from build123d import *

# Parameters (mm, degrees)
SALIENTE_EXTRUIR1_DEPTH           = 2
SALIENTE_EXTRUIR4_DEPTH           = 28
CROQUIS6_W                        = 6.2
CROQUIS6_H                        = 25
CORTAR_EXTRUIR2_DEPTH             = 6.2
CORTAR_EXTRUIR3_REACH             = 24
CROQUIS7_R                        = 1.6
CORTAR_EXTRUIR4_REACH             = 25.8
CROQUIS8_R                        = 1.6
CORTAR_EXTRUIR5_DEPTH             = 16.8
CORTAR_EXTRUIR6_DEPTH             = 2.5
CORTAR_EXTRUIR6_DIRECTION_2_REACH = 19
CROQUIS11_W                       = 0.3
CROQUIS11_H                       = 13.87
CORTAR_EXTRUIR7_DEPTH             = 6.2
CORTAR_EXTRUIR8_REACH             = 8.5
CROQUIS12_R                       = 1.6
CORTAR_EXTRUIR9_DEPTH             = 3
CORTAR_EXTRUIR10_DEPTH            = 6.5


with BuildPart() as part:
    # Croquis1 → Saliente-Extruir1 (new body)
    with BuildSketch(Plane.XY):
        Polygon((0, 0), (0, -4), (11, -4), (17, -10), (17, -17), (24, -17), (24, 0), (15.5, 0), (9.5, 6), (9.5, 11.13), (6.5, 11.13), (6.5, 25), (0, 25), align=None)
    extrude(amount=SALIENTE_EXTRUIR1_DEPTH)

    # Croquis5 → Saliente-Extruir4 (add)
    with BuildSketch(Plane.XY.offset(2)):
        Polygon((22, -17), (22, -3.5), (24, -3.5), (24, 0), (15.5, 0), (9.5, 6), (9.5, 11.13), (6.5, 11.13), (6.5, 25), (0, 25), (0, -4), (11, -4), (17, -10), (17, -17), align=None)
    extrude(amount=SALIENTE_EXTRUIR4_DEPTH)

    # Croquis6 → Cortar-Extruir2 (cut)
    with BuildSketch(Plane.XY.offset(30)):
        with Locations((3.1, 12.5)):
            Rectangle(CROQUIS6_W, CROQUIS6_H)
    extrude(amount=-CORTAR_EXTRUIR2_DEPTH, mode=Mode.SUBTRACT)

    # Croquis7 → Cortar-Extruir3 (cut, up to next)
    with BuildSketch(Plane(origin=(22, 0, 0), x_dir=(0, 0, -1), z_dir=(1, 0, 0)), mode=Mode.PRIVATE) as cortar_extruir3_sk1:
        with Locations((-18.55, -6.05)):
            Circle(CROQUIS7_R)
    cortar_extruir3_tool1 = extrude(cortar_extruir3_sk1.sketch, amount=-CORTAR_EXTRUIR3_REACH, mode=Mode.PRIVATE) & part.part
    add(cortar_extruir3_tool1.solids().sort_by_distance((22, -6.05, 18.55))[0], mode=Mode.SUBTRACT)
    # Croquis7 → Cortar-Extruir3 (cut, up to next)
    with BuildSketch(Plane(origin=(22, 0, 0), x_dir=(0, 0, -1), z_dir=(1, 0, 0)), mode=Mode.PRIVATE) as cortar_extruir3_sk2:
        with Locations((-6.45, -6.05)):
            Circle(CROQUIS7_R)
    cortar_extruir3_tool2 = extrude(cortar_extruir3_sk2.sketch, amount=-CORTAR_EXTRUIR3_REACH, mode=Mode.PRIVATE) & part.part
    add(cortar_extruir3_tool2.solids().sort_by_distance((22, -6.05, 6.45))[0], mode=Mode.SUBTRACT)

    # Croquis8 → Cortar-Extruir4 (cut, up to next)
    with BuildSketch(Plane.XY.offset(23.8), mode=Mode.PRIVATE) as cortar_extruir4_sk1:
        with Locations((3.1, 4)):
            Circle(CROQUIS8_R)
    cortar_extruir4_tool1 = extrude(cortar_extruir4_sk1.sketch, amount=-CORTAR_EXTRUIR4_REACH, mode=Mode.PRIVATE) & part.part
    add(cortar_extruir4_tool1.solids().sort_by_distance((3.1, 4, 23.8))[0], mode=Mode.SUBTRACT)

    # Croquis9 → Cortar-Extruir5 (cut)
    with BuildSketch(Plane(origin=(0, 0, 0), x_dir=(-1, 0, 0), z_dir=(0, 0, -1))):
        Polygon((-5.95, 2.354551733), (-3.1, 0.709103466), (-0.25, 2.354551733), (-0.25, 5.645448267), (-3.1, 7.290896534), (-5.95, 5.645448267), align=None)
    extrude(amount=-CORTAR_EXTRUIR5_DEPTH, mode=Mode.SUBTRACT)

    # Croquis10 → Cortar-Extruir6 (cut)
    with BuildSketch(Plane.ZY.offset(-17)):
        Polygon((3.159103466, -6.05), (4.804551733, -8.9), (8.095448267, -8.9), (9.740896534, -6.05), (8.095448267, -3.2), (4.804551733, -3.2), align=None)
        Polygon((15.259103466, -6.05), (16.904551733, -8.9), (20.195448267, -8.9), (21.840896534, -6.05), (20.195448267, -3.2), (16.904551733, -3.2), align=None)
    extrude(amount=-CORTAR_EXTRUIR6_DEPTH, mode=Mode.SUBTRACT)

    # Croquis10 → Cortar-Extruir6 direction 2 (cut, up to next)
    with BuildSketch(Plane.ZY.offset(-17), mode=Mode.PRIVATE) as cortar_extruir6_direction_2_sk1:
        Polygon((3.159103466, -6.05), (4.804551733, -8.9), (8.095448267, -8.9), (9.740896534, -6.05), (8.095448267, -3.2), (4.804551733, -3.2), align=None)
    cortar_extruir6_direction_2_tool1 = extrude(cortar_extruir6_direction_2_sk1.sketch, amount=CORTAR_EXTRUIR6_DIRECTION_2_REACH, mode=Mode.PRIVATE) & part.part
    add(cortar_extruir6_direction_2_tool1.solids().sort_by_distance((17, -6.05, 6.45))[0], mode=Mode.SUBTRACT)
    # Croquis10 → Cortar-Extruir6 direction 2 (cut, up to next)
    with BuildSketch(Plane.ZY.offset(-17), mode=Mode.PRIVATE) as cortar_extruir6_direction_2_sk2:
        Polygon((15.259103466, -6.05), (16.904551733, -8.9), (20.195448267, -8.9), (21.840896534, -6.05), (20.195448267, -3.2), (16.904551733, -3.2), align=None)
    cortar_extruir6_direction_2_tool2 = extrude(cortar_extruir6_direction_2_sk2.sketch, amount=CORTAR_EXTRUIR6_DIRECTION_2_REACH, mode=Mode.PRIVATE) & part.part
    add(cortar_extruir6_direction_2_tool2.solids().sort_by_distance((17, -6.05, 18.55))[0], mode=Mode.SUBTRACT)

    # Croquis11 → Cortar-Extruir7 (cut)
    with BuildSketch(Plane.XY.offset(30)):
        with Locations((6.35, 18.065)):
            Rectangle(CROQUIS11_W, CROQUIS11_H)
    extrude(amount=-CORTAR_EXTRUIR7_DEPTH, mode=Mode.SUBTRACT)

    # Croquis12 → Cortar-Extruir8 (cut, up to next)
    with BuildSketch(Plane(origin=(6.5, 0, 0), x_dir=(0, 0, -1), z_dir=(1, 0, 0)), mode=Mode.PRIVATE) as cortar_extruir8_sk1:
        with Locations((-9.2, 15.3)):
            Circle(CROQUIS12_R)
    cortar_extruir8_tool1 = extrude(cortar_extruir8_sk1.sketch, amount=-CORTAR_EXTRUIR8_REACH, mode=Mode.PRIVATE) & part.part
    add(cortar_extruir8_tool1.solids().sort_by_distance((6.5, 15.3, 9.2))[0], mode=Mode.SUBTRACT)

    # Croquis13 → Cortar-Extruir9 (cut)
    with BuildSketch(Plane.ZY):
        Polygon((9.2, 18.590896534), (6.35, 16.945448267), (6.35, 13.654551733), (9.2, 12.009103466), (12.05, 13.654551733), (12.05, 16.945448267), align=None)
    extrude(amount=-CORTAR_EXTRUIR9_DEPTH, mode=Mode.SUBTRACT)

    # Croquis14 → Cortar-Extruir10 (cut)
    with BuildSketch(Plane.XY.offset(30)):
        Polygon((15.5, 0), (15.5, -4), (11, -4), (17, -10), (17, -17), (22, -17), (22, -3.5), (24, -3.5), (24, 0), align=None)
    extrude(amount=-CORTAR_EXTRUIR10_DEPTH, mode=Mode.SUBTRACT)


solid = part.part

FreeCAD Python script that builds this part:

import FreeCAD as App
import Part
import Sketcher
Q = App.Units.Quantity


def add_polygon(sketch, points):
    """Adds a closed chain of lines whose ends are joined by coincident constraints."""
    first, n = sketch.GeometryCount, len(points)
    for a, b in zip(points, points[1:] + points[:1]):
        sketch.addGeometry(Part.LineSegment(App.Vector(*a, 0), App.Vector(*b, 0)), False)
    for i in range(n):
        sketch.addConstraint(Sketcher.Constraint("Coincident", first + i, 2, first + (i + 1) % n, 1))

doc = App.newDocument("Part")
params = doc.addObject("Spreadsheet::Sheet", "Params")
for row, (alias, value) in enumerate([
    ("sketch1_width", "11 mm"),
    ("sketch1_width2", "7 mm"),
    ("sketch1_width3", "3 mm"),
    ("sketch1_height", "17 mm"),
    ("sketch1_height2", "29 mm"),
    ("pad1_length", "2 mm"),
    ("sketch2_width", "2 mm"),
    ("sketch2_width2", "3 mm"),
    ("sketch2_width3", "11 mm"),
    ("sketch2_width4", "5 mm"),
    ("sketch2_height", "29 mm"),
    ("pad2_length", "28 mm"),
    ("sketch3_height", "25 mm"),
    ("sketch3_width", "6.2 mm"),
    ("pocket1_length", "6.2 mm"),
    ("sketch4_diameter", "3.2 mm"),
    ("sketch5_diameter", "3.2 mm"),
    ("sketch6_diameter", "3.2 mm"),
    ("pocket5_length", "16.8 mm"),
    ("pocket6_length", "2.5 mm"),
    ("pocket7_length", "17 mm"),
    ("pocket8_length", "17 mm"),
    ("sketch11_width", "0.3 mm"),
    ("sketch11_height", "13.87 mm"),
    ("pocket9_length", "6.2 mm"),
    ("sketch12_diameter", "3.2 mm"),
    ("pocket11_length", "3 mm"),
    ("sketch14_width", "5 mm"),
    ("sketch14_width2", "2 mm"),
    ("sketch14_height", "4 mm"),
    ("sketch14_height2", "7 mm"),
    ("sketch14_width3", "4.5 mm"),
    ("pocket12_length", "6.5 mm"),
], start=1):
    params.set(f"A{row}", alias)
    params.set(f"B{row}", "=" + value)
    params.setAlias(f"B{row}", alias)

body = doc.addObject("PartDesign::Body", "Body")

sketch1 = body.newObject("Sketcher::SketchObject", "Sketch")
sketch1.AttachmentSupport = (doc.getObject("XY_Plane"), [""])
sketch1.MapMode = "FlatFace"
add_polygon(sketch1, [(0, -4), (11, -4), (17, -10), (17, -17), (24, -17), (24, 0), (15.5, 0), (9.5, 6), (9.5, 11.1), (6.5, 11.1), (6.5, 25), (0, 25)])
sketch1.addConstraint([
    Sketcher.Constraint("Horizontal", 0),
    Sketcher.Constraint("Vertical", 2),
    Sketcher.Constraint("Horizontal", 3),
    Sketcher.Constraint("Vertical", 4),
    Sketcher.Constraint("Horizontal", 5),
    Sketcher.Constraint("Vertical", 7),
    Sketcher.Constraint("Horizontal", 8),
    Sketcher.Constraint("Vertical", 9),
    Sketcher.Constraint("Horizontal", 10),
    Sketcher.Constraint("Vertical", 11),
    Sketcher.Constraint("PointOnObject", 4, 2, -1),
    Sketcher.Constraint("PointOnObject", 10, 2, -2),
    Sketcher.Constraint("Parallel", 1, 6),
    Sketcher.Constraint("Equal", 3, 2),
    Sketcher.Constraint("Equal", 1, 6),
    Sketcher.Constraint("DistanceX", 0, 1, 0, 2, 11.0),
    Sketcher.Constraint("DistanceX", 3, 1, 3, 2, 7.0),
    Sketcher.Constraint("DistanceX", 8, 2, 8, 1, 3.0),
    Sketcher.Constraint("DistanceY", 4, 1, 4, 2, 17.0),
    Sketcher.Constraint("DistanceY", 11, 2, 11, 1, 29.0),
    Sketcher.Constraint("Angle", 1, Q("-45 deg")),
    Sketcher.Constraint("DistanceX", 5, 2, 5, 1, 8.5),
    Sketcher.Constraint("DistanceY", 0, 2, -1, 1, 4.0),
    Sketcher.Constraint("DistanceY", 7, 1, 7, 2, 5.13),
])
sketch1.setExpression("Constraints[27]", "Params.sketch1_width")
sketch1.setExpression("Constraints[28]", "Params.sketch1_width2")
sketch1.setExpression("Constraints[29]", "Params.sketch1_width3")
sketch1.setExpression("Constraints[30]", "Params.sketch1_height")
sketch1.setExpression("Constraints[31]", "Params.sketch1_height2")
pad1 = body.newObject("PartDesign::Pad", "Pad")
pad1.Profile = sketch1
pad1.setExpression("Length", "Params.pad1_length")

sketch2 = body.newObject("Sketcher::SketchObject", "Sketch001")
sketch2.AttachmentSupport = (doc.getObject("XY_Plane"), [""])
sketch2.MapMode = "FlatFace"
sketch2.AttachmentOffset = App.Placement(App.Vector(0, 0, 2), App.Rotation())
add_polygon(sketch2, [(22, -17), (22, -3.5), (24, -3.5), (24, 0), (15.5, 0), (9.5, 6), (9.5, 11.1), (6.5, 11.1), (6.5, 25), (0, 25), (0, -4), (11, -4), (17, -10), (17, -17)])
sketch2.addConstraint([
    Sketcher.Constraint("Vertical", 0),
    Sketcher.Constraint("Horizontal", 1),
    Sketcher.Constraint("Vertical", 2),
    Sketcher.Constraint("Horizontal", 3),
    Sketcher.Constraint("Vertical", 5),
    Sketcher.Constraint("Horizontal", 6),
    Sketcher.Constraint("Vertical", 7),
    Sketcher.Constraint("Horizontal", 8),
    Sketcher.Constraint("Vertical", 9),
    Sketcher.Constraint("Horizontal", 10),
    Sketcher.Constraint("Vertical", 12),
    Sketcher.Constraint("Horizontal", 13),
    Sketcher.Constraint("PointOnObject", 2, 2, -1),
    Sketcher.Constraint("PointOnObject", 8, 2, -2),
    Sketcher.Constraint("Parallel", 4, 11),
    Sketcher.Constraint("Equal", 4, 11),
    Sketcher.Constraint("DistanceX", 1, 1, 1, 2, 2.0),
    Sketcher.Constraint("DistanceX", 6, 2, 6, 1, 3.0),
    Sketcher.Constraint("DistanceX", 10, 1, 10, 2, 11.0),
    Sketcher.Constraint("DistanceX", 13, 1, 13, 2, 5.0),
    Sketcher.Constraint("DistanceY", 9, 2, 9, 1, 29.0),
    Sketcher.Constraint("DistanceY", 12, 2, 12, 1, 7.0),
    Sketcher.Constraint("Angle", 4, Q("135 deg")),
    Sketcher.Constraint("DistanceX", 3, 2, 3, 1, 8.5),
    Sketcher.Constraint("DistanceY", 0, 1, 0, 2, 13.5),
    Sketcher.Constraint("DistanceY", 2, 1, 2, 2, 3.5),
    Sketcher.Constraint("DistanceX", -1, 1, 0, 2, 22.0),
    Sketcher.Constraint("DistanceY", 5, 1, 5, 2, 5.13),
])
sketch2.setExpression("Constraints[30]", "Params.sketch2_width")
sketch2.setExpression("Constraints[31]", "Params.sketch2_width2")
sketch2.setExpression("Constraints[32]", "Params.sketch2_width3")
sketch2.setExpression("Constraints[33]", "Params.sketch2_width4")
sketch2.setExpression("Constraints[34]", "Params.sketch2_height")
pad2 = body.newObject("PartDesign::Pad", "Pad001")
pad2.Profile = sketch2
pad2.setExpression("Length", "Params.pad2_length")

sketch3 = body.newObject("Sketcher::SketchObject", "Sketch002")
sketch3.AttachmentSupport = (doc.getObject("XY_Plane"), [""])
sketch3.MapMode = "FlatFace"
sketch3.AttachmentOffset = App.Placement(App.Vector(0, 0, 30), App.Rotation())
add_polygon(sketch3, [(0, 25), (0, 0), (6, 0), (6, 25)])
sketch3.addConstraint([
    Sketcher.Constraint("Vertical", 0),
    Sketcher.Constraint("Horizontal", 1),
    Sketcher.Constraint("Vertical", 2),
    Sketcher.Constraint("Horizontal", 3),
    Sketcher.Constraint("Coincident", 0, 2, -1, 1),
    Sketcher.Constraint("DistanceY", 0, 2, 0, 1, 25.0),
    Sketcher.Constraint("DistanceX", 1, 1, 1, 2, 6.2),
])
sketch3.setExpression("Constraints[9]", "Params.sketch3_height")
sketch3.setExpression("Constraints[10]", "Params.sketch3_width")
pocket1 = body.newObject("PartDesign::Pocket", "Pocket")
pocket1.Profile = sketch3
pocket1.setExpression("Length", "Params.pocket1_length")

sketch4 = body.newObject("Sketcher::SketchObject", "Sketch003")
sketch4.AttachmentSupport = (doc.getObject("YZ_Plane"), [""])
sketch4.MapMode = "FlatFace"
sketch4.AttachmentOffset = App.Placement(App.Vector(0, 0, 22), App.Rotation())
sketch4.addGeometry(Part.Circle(App.Vector(-6, 18.6, 0), App.Vector(0, 0, 1), 1.6), False)
sketch4.addConstraint([
    Sketcher.Constraint("Diameter", 0, 3.2),
    Sketcher.Constraint("DistanceX", 0, 3, -1, 1, 6.05),
    Sketcher.Constraint("DistanceY", -1, 1, 0, 3, 18.55),
])
sketch4.setExpression("Constraints[0]", "Params.sketch4_diameter")
pocket2 = body.newObject("PartDesign::Pocket", "Pocket001")
pocket2.Profile = sketch4
pocket2.Type = "UpToFirst"

sketch5 = body.newObject("Sketcher::SketchObject", "Sketch004")
sketch5.AttachmentSupport = (doc.getObject("YZ_Plane"), [""])
sketch5.MapMode = "FlatFace"
sketch5.AttachmentOffset = App.Placement(App.Vector(0, 0, 22), App.Rotation())
sketch5.addGeometry(Part.Circle(App.Vector(-6, 6.5, 0), App.Vector(0, 0, 1), 1.6), False)
sketch5.addConstraint([
    Sketcher.Constraint("Diameter", 0, 3.2),
    Sketcher.Constraint("DistanceX", 0, 3, -1, 1, 6.05),
    Sketcher.Constraint("DistanceY", -1, 1, 0, 3, 6.45),
])
sketch5.setExpression("Constraints[0]", "Params.sketch5_diameter")
pocket3 = body.newObject("PartDesign::Pocket", "Pocket002")
pocket3.Profile = sketch5
pocket3.Type = "UpToFirst"

sketch6 = body.newObject("Sketcher::SketchObject", "Sketch005")
sketch6.AttachmentSupport = (doc.getObject("XY_Plane"), [""])
sketch6.MapMode = "FlatFace"
sketch6.AttachmentOffset = App.Placement(App.Vector(0, 0, 23.8), App.Rotation())
sketch6.addGeometry(Part.Circle(App.Vector(3.1, 4, 0), App.Vector(0, 0, 1), 1.6), False)
sketch6.addConstraint([
    Sketcher.Constraint("Diameter", 0, 3.2),
    Sketcher.Constraint("DistanceY", -1, 1, 0, 3, 4.0),
    Sketcher.Constraint("DistanceX", -1, 1, 0, 3, 3.1),
])
sketch6.setExpression("Constraints[0]", "Params.sketch6_diameter")
pocket4 = body.newObject("PartDesign::Pocket", "Pocket003")
pocket4.Profile = sketch6
pocket4.Type = "UpToFirst"

sketch7 = body.newObject("Sketcher::SketchObject", "Sketch006")
sketch7.AttachmentSupport = (doc.getObject("XY_Plane"), [""])
sketch7.MapMode = "FlatFace"
add_polygon(sketch7, [(6, 2.4), (3.1, 0.7), (0.2, 2.4), (0.2, 5.6), (3.1, 7.3), (6, 5.6)])
sketch7.addConstraint([
    Sketcher.Constraint("Vertical", 2),
    Sketcher.Constraint("Vertical", 5),
    Sketcher.Constraint("Parallel", 0, 3),
    Sketcher.Constraint("Parallel", 1, 4),
    Sketcher.Constraint("Horizontal", 2, 2, 4, 2),
    Sketcher.Constraint("Horizontal", 1, 2, 5, 2),
    Sketcher.Constraint("Vertical", 0, 2, 3, 2),
    Sketcher.Constraint("Angle", 0, Q("-150 deg")),
    Sketcher.Constraint("DistanceX", -1, 1, 0, 2, 3.1),
    Sketcher.Constraint("DistanceX", 2, 2, 4, 2, 5.7),
    Sketcher.Constraint("DistanceY", 2, 1, 2, 2, 3.290897),
    Sketcher.Constraint("DistanceY", -1, 1, 1, 2, 2.354552),
])
pocket5 = body.newObject("PartDesign::Pocket", "Pocket004")
pocket5.Profile = sketch7
pocket5.setExpression("Length", "Params.pocket5_length")
pocket5.Reversed = True

sketch8 = body.newObject("Sketcher::SketchObject", "Sketch007")
sketch8.AttachmentSupport = (doc.getObject("YZ_Plane"), [""])
sketch8.MapMode = "FlatFace"
sketch8.AttachmentOffset = App.Placement(App.Vector(0, 0, 17), App.Rotation())
add_polygon(sketch8, [(-6, 3.2), (-8.9, 4.8), (-8.9, 8.1), (-6, 9.7), (-3.2, 8.1), (-3.2, 4.8)])
add_polygon(sketch8, [(-6, 15.3), (-8.9, 16.9), (-8.9, 20.2), (-6, 21.8), (-3.2, 20.2), (-3.2, 16.9)])
sketch8.addConstraint([
    Sketcher.Constraint("Vertical", 1),
    Sketcher.Constraint("Vertical", 4),
    Sketcher.Constraint("Vertical", 7),
    Sketcher.Constraint("Vertical", 10),
    Sketcher.Constraint("Parallel", 0, 3),
    Sketcher.Constraint("Parallel", 2, 5),
    Sketcher.Constraint("Parallel", 3, 6),
    Sketcher.Constraint("Parallel", 5, 8),
    Sketcher.Constraint("Parallel", 6, 9),
    Sketcher.Constraint("Parallel", 8, 11),
    Sketcher.Constraint("Horizontal", 1, 2, 3, 2),
    Sketcher.Constraint("Horizontal", 0, 2, 4, 2),
    Sketcher.Constraint("Horizontal", 7, 2, 9, 2),
    Sketcher.Constraint("Horizontal", 6, 2, 10, 2),
    Sketcher.Constraint("Vertical", 2, 2, 5, 2),
    Sketcher.Constraint("Vertical", 1, 2, 6, 2),
    Sketcher.Constraint("Vertical", 5, 2, 8, 2),
    Sketcher.Constraint("Equal", 4, 7),
    Sketcher.Constraint("Angle", 0, Q("150 deg")),
    Sketcher.Constraint("DistanceX", 0, 2, -1, 1, 8.9),
    Sketcher.Constraint("DistanceX", 3, 2, -1, 1, 3.2),
    Sketcher.Constraint("DistanceY", 0, 2, 6, 2, 12.1),
    Sketcher.Constraint("DistanceY", 1, 1, 1, 2, 3.290897),
    Sketcher.Constraint("DistanceY", -1, 1, 0, 2, 4.804552),
])
pocket6 = body.newObject("PartDesign::Pocket", "Pocket005")
pocket6.Profile = sketch8
pocket6.setExpression("Length", "Params.pocket6_length")
pocket6.Reversed = True

sketch9 = body.newObject("Sketcher::SketchObject", "Sketch008")
sketch9.AttachmentSupport = (doc.getObject("YZ_Plane"), [""])
sketch9.MapMode = "FlatFace"
sketch9.AttachmentOffset = App.Placement(App.Vector(0, 0, 17), App.Rotation())
add_polygon(sketch9, [(-6, 3.2), (-8.9, 4.8), (-8.9, 8.1), (-6, 9.7), (-3.2, 8.1), (-3.2, 4.8)])
sketch9.addConstraint([
    Sketcher.Constraint("Vertical", 1),
    Sketcher.Constraint("Vertical", 4),
    Sketcher.Constraint("Parallel", 0, 3),
    Sketcher.Constraint("Parallel", 2, 5),
    Sketcher.Constraint("Horizontal", 1, 2, 3, 2),
    Sketcher.Constraint("Horizontal", 0, 2, 4, 2),
    Sketcher.Constraint("Vertical", 2, 2, 5, 2),
    Sketcher.Constraint("Angle", 0, Q("150 deg")),
    Sketcher.Constraint("DistanceX", 0, 2, -1, 1, 8.9),
    Sketcher.Constraint("DistanceX", 3, 2, -1, 1, 3.2),
    Sketcher.Constraint("DistanceY", 1, 1, 1, 2, 3.290897),
    Sketcher.Constraint("DistanceY", -1, 1, 0, 2, 4.804552),
])
pocket7 = body.newObject("PartDesign::Pocket", "Pocket006")
pocket7.Profile = sketch9
pocket7.setExpression("Length", "Params.pocket7_length")

sketch10 = body.newObject("Sketcher::SketchObject", "Sketch009")
sketch10.AttachmentSupport = (doc.getObject("YZ_Plane"), [""])
sketch10.MapMode = "FlatFace"
sketch10.AttachmentOffset = App.Placement(App.Vector(0, 0, 17), App.Rotation())
add_polygon(sketch10, [(-6, 15.3), (-8.9, 16.9), (-8.9, 20.2), (-6, 21.8), (-3.2, 20.2), (-3.2, 16.9)])
sketch10.addConstraint([
    Sketcher.Constraint("Vertical", 1),
    Sketcher.Constraint("Vertical", 4),
    Sketcher.Constraint("Parallel", 0, 3),
    Sketcher.Constraint("Parallel", 2, 5),
    Sketcher.Constraint("Horizontal", 1, 2, 3, 2),
    Sketcher.Constraint("Horizontal", 0, 2, 4, 2),
    Sketcher.Constraint("Vertical", 2, 2, 5, 2),
    Sketcher.Constraint("Angle", 0, Q("150 deg")),
    Sketcher.Constraint("DistanceX", 0, 2, -1, 1, 8.9),
    Sketcher.Constraint("DistanceX", 3, 2, -1, 1, 3.2),
    Sketcher.Constraint("DistanceY", 1, 1, 1, 2, 3.290897),
    Sketcher.Constraint("DistanceY", -1, 1, 0, 2, 16.904552),
])
pocket8 = body.newObject("PartDesign::Pocket", "Pocket007")
pocket8.Profile = sketch10
pocket8.setExpression("Length", "Params.pocket8_length")

sketch11 = body.newObject("Sketcher::SketchObject", "Sketch010")
sketch11.AttachmentSupport = (doc.getObject("XY_Plane"), [""])
sketch11.MapMode = "FlatFace"
sketch11.AttachmentOffset = App.Placement(App.Vector(0, 0, 30), App.Rotation())
add_polygon(sketch11, [(6.2, 25), (6.2, 11.13), (6.5, 11.13), (6.5, 25)])
sketch11.addConstraint([
    Sketcher.Constraint("Vertical", 0),
    Sketcher.Constraint("Horizontal", 1),
    Sketcher.Constraint("Vertical", 2),
    Sketcher.Constraint("Horizontal", 3),
    Sketcher.Constraint("DistanceX", 1, 1, 1, 2, 0.3),
    Sketcher.Constraint("DistanceY", -1, 1, 2, 2, 25.0),
    Sketcher.Constraint("DistanceY", 0, 2, 0, 1, 13.87),
    Sketcher.Constraint("DistanceX", -1, 1, 0, 2, 6.2),
])
sketch11.setExpression("Constraints[8]", "Params.sketch11_width")
sketch11.setExpression("Constraints[10]", "Params.sketch11_height")
pocket9 = body.newObject("PartDesign::Pocket", "Pocket008")
pocket9.Profile = sketch11
pocket9.setExpression("Length", "Params.pocket9_length")

sketch12 = body.newObject("Sketcher::SketchObject", "Sketch011")
sketch12.AttachmentSupport = (doc.getObject("YZ_Plane"), [""])
sketch12.MapMode = "FlatFace"
sketch12.AttachmentOffset = App.Placement(App.Vector(0, 0, 6.5), App.Rotation())
sketch12.addGeometry(Part.Circle(App.Vector(15.3, 9.2, 0), App.Vector(0, 0, 1), 1.6), False)
sketch12.addConstraint([
    Sketcher.Constraint("Diameter", 0, 3.2),
    Sketcher.Constraint("DistanceX", -1, 1, 0, 3, 15.3),
    Sketcher.Constraint("DistanceY", -1, 1, 0, 3, 9.2),
])
sketch12.setExpression("Constraints[0]", "Params.sketch12_diameter")
pocket10 = body.newObject("PartDesign::Pocket", "Pocket009")
pocket10.Profile = sketch12
pocket10.Type = "UpToFirst"

sketch13 = body.newObject("Sketcher::SketchObject", "Sketch012")
sketch13.AttachmentSupport = (doc.getObject("YZ_Plane"), [""])
sketch13.MapMode = "FlatFace"
add_polygon(sketch13, [(18.6, 9.2), (16.9, 6.3), (13.7, 6.3), (12, 9.2), (13.7, 12.1), (16.9, 12.1)])
sketch13.addConstraint([
    Sketcher.Constraint("Horizontal", 1),
    Sketcher.Constraint("Horizontal", 4),
    Sketcher.Constraint("Parallel", 0, 3),
    Sketcher.Constraint("Parallel", 2, 5),
    Sketcher.Constraint("Horizontal", 2, 2, 5, 2),
    Sketcher.Constraint("Vertical", 1, 2, 3, 2),
    Sketcher.Constraint("Vertical", 0, 2, 4, 2),
    Sketcher.Constraint("Angle", 0, Q("-120 deg")),
    Sketcher.Constraint("DistanceY", -1, 1, 2, 2, 9.2),
    Sketcher.Constraint("DistanceY", 1, 2, 3, 2, 5.7),
    Sketcher.Constraint("DistanceX", 1, 2, 1, 1, 3.290897),
    Sketcher.Constraint("DistanceX", -1, 1, 0, 2, 16.945448),
])
pocket11 = body.newObject("PartDesign::Pocket", "Pocket010")
pocket11.Profile = sketch13
pocket11.setExpression("Length", "Params.pocket11_length")
pocket11.Reversed = True

sketch14 = body.newObject("Sketcher::SketchObject", "Sketch013")
sketch14.AttachmentSupport = (doc.getObject("XY_Plane"), [""])
sketch14.MapMode = "FlatFace"
sketch14.AttachmentOffset = App.Placement(App.Vector(0, 0, 30), App.Rotation())
add_polygon(sketch14, [(15.5, 0), (15.5, -4), (11, -4), (17, -10), (17, -17), (22, -17), (22, -3.5), (24, -3.5), (24, 0)])
sketch14.addConstraint([
    Sketcher.Constraint("Vertical", 0),
    Sketcher.Constraint("Horizontal", 1),
    Sketcher.Constraint("Vertical", 3),
    Sketcher.Constraint("Horizontal", 4),
    Sketcher.Constraint("Vertical", 5),
    Sketcher.Constraint("Horizontal", 6),
    Sketcher.Constraint("Vertical", 7),
    Sketcher.Constraint("Horizontal", 8),
    Sketcher.Constraint("PointOnObject", 7, 2, -1),
    Sketcher.Constraint("DistanceX", 4, 1, 4, 2, 5.0),
    Sketcher.Constraint("DistanceX", 6, 1, 6, 2, 2.0),
    Sketcher.Constraint("DistanceY", 0, 2, 0, 1, 4.0),
    Sketcher.Constraint("DistanceY", 3, 2, 3, 1, 7.0),
    Sketcher.Constraint("Angle", 2, Q("-45 deg")),
    Sketcher.Constraint("DistanceX", 1, 2, 1, 1, 4.5),
    Sketcher.Constraint("DistanceX", 8, 2, 8, 1, 8.5),
    Sketcher.Constraint("DistanceY", 5, 1, 5, 2, 13.5),
    Sketcher.Constraint("DistanceX", -1, 1, 1, 2, 11.0),
])
sketch14.setExpression("Constraints[18]", "Params.sketch14_width")
sketch14.setExpression("Constraints[19]", "Params.sketch14_width2")
sketch14.setExpression("Constraints[20]", "Params.sketch14_height")
sketch14.setExpression("Constraints[21]", "Params.sketch14_height2")
sketch14.setExpression("Constraints[23]", "Params.sketch14_width3")
pocket12 = body.newObject("PartDesign::Pocket", "Pocket011")
pocket12.Profile = sketch14
pocket12.setExpression("Length", "Params.pocket12_length")

doc.recompute()
